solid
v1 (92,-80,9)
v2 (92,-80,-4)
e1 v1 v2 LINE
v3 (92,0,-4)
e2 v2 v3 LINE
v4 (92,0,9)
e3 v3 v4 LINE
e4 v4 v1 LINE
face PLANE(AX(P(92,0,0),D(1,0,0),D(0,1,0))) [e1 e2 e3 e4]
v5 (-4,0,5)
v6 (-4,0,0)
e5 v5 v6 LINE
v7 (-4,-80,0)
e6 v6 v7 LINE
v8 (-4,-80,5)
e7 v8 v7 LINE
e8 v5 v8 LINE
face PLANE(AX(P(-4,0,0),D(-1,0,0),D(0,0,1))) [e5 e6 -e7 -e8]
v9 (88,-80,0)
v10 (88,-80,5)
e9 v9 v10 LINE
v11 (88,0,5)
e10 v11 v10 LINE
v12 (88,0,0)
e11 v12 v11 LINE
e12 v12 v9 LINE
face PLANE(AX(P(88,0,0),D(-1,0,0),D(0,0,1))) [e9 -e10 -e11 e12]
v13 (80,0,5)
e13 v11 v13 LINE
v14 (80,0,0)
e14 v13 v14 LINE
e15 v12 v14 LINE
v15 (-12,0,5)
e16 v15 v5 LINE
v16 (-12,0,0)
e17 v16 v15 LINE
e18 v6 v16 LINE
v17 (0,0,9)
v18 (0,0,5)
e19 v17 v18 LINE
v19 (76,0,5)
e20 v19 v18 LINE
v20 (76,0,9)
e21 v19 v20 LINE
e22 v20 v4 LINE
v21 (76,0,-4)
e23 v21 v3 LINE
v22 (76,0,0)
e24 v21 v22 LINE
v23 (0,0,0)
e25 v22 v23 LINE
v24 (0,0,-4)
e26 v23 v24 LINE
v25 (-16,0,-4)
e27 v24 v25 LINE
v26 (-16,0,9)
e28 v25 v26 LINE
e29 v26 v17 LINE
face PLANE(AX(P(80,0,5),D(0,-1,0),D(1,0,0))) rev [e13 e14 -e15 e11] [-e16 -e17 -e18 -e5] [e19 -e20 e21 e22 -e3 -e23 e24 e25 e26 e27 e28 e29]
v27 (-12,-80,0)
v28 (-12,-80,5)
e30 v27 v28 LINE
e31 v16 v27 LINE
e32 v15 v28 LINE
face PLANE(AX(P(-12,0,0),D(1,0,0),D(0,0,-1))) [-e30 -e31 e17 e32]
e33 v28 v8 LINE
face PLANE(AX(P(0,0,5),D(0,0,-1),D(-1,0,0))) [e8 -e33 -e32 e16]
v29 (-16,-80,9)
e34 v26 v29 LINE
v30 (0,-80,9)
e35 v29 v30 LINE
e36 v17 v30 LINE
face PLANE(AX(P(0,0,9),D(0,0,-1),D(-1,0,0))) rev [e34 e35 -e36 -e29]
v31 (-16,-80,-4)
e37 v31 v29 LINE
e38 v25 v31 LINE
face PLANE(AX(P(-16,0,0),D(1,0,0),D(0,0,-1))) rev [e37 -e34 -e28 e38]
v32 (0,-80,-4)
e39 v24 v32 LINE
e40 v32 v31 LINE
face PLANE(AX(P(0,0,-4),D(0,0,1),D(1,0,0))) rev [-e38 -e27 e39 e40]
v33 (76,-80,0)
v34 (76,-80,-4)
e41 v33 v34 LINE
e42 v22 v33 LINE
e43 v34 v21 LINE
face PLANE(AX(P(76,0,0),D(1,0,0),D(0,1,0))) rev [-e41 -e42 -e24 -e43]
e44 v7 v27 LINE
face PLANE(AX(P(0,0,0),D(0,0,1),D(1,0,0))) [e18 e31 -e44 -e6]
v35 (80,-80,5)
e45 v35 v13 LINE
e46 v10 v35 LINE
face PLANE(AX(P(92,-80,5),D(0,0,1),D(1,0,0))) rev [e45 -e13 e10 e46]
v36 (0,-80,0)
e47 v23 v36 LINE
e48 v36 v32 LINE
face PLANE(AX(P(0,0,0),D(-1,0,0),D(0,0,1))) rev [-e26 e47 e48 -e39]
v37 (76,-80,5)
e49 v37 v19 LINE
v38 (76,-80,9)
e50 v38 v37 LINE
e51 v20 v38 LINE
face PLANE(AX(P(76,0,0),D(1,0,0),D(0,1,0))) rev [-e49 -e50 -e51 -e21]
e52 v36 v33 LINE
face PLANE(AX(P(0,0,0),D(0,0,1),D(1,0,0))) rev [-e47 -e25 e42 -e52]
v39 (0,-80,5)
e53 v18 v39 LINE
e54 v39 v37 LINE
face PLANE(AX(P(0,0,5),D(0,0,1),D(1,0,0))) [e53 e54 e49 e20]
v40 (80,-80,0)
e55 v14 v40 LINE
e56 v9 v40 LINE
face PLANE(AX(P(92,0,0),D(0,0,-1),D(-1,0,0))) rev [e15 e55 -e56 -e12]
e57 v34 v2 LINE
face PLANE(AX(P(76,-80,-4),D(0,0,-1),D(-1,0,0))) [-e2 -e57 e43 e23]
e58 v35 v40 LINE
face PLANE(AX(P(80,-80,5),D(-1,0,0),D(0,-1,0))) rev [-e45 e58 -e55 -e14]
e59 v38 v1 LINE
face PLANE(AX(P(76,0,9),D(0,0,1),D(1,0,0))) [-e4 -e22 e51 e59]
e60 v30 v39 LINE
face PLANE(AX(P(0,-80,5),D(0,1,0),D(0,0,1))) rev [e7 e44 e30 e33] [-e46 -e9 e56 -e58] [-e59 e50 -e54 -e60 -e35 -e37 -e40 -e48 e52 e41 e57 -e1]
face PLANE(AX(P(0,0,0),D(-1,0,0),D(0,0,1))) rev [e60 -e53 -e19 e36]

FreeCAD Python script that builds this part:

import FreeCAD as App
import Part
import Sketcher

V = App.Vector
Q = App.Units.Quantity


def add_polygon(sketch, points):
    """Adds a closed chain of lines whose ends are joined by coincident constraints."""
    first, n = sketch.GeometryCount, len(points)
    for a, b in zip(points, points[1:] + points[:1]):
        sketch.addGeometry(Part.LineSegment(App.Vector(*a, 0), App.Vector(*b, 0)), False)
    for i in range(n):
        sketch.addConstraint(Sketcher.Constraint("Coincident", first + i, 2, first + (i + 1) % n, 1))

doc = App.newDocument("Part")
body = doc.addObject("PartDesign::Body", "Body")

sketch1 = body.newObject("Sketcher::SketchObject", "Sketch")
sketch1.AttachmentSupport = (doc.getObject("XY_Plane"), [""])
sketch1.MapMode = "FlatFace"
add_polygon(sketch1, [(0, 0), (0, -80), (80, -80), (80, 0)])
sketch1.addConstraint([
    Sketcher.Constraint("Vertical", 0),
    Sketcher.Constraint("Horizontal", 1),
    Sketcher.Constraint("Vertical", 2),
    Sketcher.Constraint("Horizontal", 3),
    Sketcher.Constraint("Coincident", 3, 2, -1, 1),
    Sketcher.Constraint("Equal", 3, 0),
    Sketcher.Constraint("DistanceX", 1, 1, 1, 2, Q("80 mm")),
])
pad1 = body.newObject("PartDesign::Pad", "Pad")
pad1.Profile = sketch1
pad1.Length = 5

sketch2 = body.newObject("Sketcher::SketchObject", "Sketch001")
sketch2.AttachmentSupport = (doc.getObject("YZ_Plane"), [""])
sketch2.MapMode = "FlatFace"
sketch2.AttachmentOffset = App.Placement(V(0, 0, 80), App.Rotation())
add_polygon(sketch2, [(0, 9), (-80, 9), (-80, 5), (0, 5)])
add_polygon(sketch2, [(0, 0), (-80, 0), (-80, -4), (0, -4)])
sketch2.addConstraint([
    Sketcher.Constraint("Horizontal", 0),
    Sketcher.Constraint("Vertical", 1),
    Sketcher.Constraint("Horizontal", 2),
    Sketcher.Constraint("Vertical", 3),
    Sketcher.Constraint("Horizontal", 4),
    Sketcher.Constraint("Vertical", 5),
    Sketcher.Constraint("Horizontal", 6),
    Sketcher.Constraint("Vertical", 7),
    Sketcher.Constraint("Coincident", 7, 2, -1, 1),
    Sketcher.Constraint("PointOnObject", 2, 2, -2),
    Sketcher.Constraint("Vertical", 1, 2, 4, 2),
    Sketcher.Constraint("Equal", 3, 5),
    Sketcher.Constraint("DistanceX", 0, 2, 0, 1, Q("80 mm")),
    Sketcher.Constraint("DistanceY", 1, 2, 1, 1, Q("4 mm")),
    Sketcher.Constraint("DistanceY", -1, 1, 0, 2, Q("9 mm")),
])
pad2 = body.newObject("PartDesign::Pad", "Pad001")
pad2.Profile = sketch2
pad2.Length = 4
pad2.Reversed = True

sketch3 = body.newObject("Sketcher::SketchObject", "Sketch002")
sketch3.AttachmentSupport = (doc.getObject("YZ_Plane"), [""])
sketch3.MapMode = "FlatFace"
sketch3.AttachmentOffset = App.Placement(V(0, 0, 80), App.Rotation())
add_polygon(sketch3, [(0, 9), (-80, 9), (-80, 5), (0, 5)])
add_polygon(sketch3, [(0, 0), (-80, 0), (-80, -4), (0, -4)])
sketch3.addConstraint([
    Sketcher.Constraint("Horizontal", 0),
    Sketcher.Constraint("Vertical", 1),
    Sketcher.Constraint("Horizontal", 2),
    Sketcher.Constraint("Vertical", 3),
    Sketcher.Constraint("Horizontal", 4),
    Sketcher.Constraint("Vertical", 5),
    Sketcher.Constraint("Horizontal", 6),
    Sketcher.Constraint("Vertical", 7),
    Sketcher.Constraint("Coincident", 7, 2, -1, 1),
    Sketcher.Constraint("PointOnObject", 2, 2, -2),
    Sketcher.Constraint("Vertical", 1, 2, 4, 2),
    Sketcher.Constraint("Equal", 3, 5),
    Sketcher.Constraint("DistanceX", 0, 2, 0, 1, Q("80 mm")),
    Sketcher.Constraint("DistanceY", 1, 2, 1, 1, Q("4 mm")),
    Sketcher.Constraint("DistanceY", -1, 1, 0, 2, Q("9 mm")),
])
pad3 = body.newObject("PartDesign::Pad", "Pad002")
pad3.Profile = sketch3
pad3.Length = 12

sketch4 = body.newObject("Sketcher::SketchObject", "Sketch003")
sketch4.AttachmentSupport = (doc.getObject("XY_Plane"), [""])
sketch4.MapMode = "FlatFace"
sketch4.AttachmentOffset = App.Placement(V(0, 0, 9), App.Rotation())
add_polygon(sketch4, [(88, 0), (88, -80), (92, -80), (92, 0)])
sketch4.addConstraint([
    Sketcher.Constraint("Vertical", 0),
    Sketcher.Constraint("Horizontal", 1),
    Sketcher.Constraint("Vertical", 2),
    Sketcher.Constraint("Horizontal", 3),
    Sketcher.Constraint("PointOnObject", 2, 2, -1),
    Sketcher.Constraint("DistanceX", 1, 1, 1, 2, Q("4 mm")),
    Sketcher.Constraint("DistanceY", 0, 2, 0, 1, Q("80 mm")),
    Sketcher.Constraint("DistanceX", -1, 1, 0, 2, Q("88 mm")),
])
pad4 = body.newObject("PartDesign::Pad", "Pad003")
pad4.Profile = sketch4
pad4.Length = 9
pad4.Reversed = True

sketch5 = body.newObject("Sketcher::SketchObject", "Sketch004")
sketch5.AttachmentSupport = (doc.getObject("XZ_Plane"), [""])
sketch5.MapMode = "FlatFace"
sketch5.AttachmentOffset = App.Placement(V(0, 0, 80), App.Rotation())
add_polygon(sketch5, [(-16, -4), (0, -4), (0, 9), (-16, 9)])
add_polygon(sketch5, [(-4, 0), (-12, 0), (-12, 5), (-4, 5)])
sketch5.addConstraint([
    Sketcher.Constraint("Horizontal", 0),
    Sketcher.Constraint("Vertical", 1),
    Sketcher.Constraint("Horizontal", 2),
    Sketcher.Constraint("Vertical", 3),
    Sketcher.Constraint("Horizontal", 4),
    Sketcher.Constraint("Vertical", 5),
    Sketcher.Constraint("Horizontal", 6),
    Sketcher.Constraint("Vertical", 7),
    Sketcher.Constraint("PointOnObject", 0, 2, -2),
    Sketcher.Constraint("PointOnObject", 4, 2, -1),
    Sketcher.Constraint("DistanceX", 0, 1, 0, 2, Q("16 mm")),
    Sketcher.Constraint("DistanceX", 4, 2, 4, 1, Q("8 mm")),
    Sketcher.Constraint("DistanceY", 1, 1, 1, 2, Q("13 mm")),
    Sketcher.Constraint("DistanceY", 5, 1, 5, 2, Q("5 mm")),
    Sketcher.Constraint("DistanceY", 0, 2, -1, 1, Q("4 mm")),
    Sketcher.Constraint("DistanceX", 4, 2, -1, 1, Q("12 mm")),
])
pad5 = body.newObject("PartDesign::Pad", "Pad004")
pad5.Profile = sketch5
pad5.Length = 80
pad5.Reversed = True

doc.recompute()
